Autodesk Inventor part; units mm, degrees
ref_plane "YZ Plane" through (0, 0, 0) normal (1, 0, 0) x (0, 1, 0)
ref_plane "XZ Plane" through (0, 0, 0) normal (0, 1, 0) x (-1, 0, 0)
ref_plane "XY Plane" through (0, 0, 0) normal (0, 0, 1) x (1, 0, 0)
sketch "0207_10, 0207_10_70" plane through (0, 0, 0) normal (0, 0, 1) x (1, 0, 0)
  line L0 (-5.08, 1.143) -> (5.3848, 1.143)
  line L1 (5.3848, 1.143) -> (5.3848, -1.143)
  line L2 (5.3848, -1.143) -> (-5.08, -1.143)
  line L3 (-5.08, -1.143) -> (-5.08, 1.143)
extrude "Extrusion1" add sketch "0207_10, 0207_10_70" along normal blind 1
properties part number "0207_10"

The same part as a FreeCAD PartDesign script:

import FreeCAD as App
import Part
import Sketcher
from FreeCAD import Vector
Q = App.Units.Quantity

doc = App.newDocument("Part")
body = doc.addObject("PartDesign::Body", "Body")

# Sketch on XY plane
sketch1 = doc.addObject("Sketcher::SketchObject", "Sketch")
body.addObject(sketch1)
sketch1.AttachmentSupport = (doc.XY_Plane, [""])
sketch1.MapMode = "FlatFace"
sketch1.addGeometry([
    Part.LineSegment(Vector(5.3848, 1.143, 0), Vector(-5.08, 1.143, 0)),
    Part.LineSegment(Vector(-5.08, 1.143, 0), Vector(-5.08, -1.143, 0)),
    Part.LineSegment(Vector(-5.08, -1.143, 0), Vector(5.3848, -1.143, 0)),
    Part.LineSegment(Vector(5.3848, -1.143, 0), Vector(5.3848, 1.143, 0)),
], False)
sketch1.addConstraint([
    Sketcher.Constraint("Coincident", 0, 2, 1, 1),
    Sketcher.Constraint("Coincident", 1, 2, 2, 1),
    Sketcher.Constraint("Coincident", 2, 2, 3, 1),
    Sketcher.Constraint("Coincident", 3, 2, 0, 1),
    Sketcher.Constraint("Horizontal", 0),
    Sketcher.Constraint("Vertical", 1),
    Sketcher.Constraint("Horizontal", 2),
    Sketcher.Constraint("Vertical", 3),
    Sketcher.Constraint("DistanceY", 1, 2, 1, 1, Q("0.09 in")),
    Sketcher.Constraint("DistanceX", 0, 2, -1, 1, Q("0.2 in")),
    Sketcher.Constraint("DistanceX", 0, 2, 0, 1, Q("0.412 in")),
    Sketcher.Constraint("DistanceY", -1, 1, 0, 2, Q("0.045 in")),
])
pad1 = doc.addObject("PartDesign::Pad", "Pad")
body.addObject(pad1)
pad1.Profile = sketch1
pad1.Length = 1

doc.recompute()
